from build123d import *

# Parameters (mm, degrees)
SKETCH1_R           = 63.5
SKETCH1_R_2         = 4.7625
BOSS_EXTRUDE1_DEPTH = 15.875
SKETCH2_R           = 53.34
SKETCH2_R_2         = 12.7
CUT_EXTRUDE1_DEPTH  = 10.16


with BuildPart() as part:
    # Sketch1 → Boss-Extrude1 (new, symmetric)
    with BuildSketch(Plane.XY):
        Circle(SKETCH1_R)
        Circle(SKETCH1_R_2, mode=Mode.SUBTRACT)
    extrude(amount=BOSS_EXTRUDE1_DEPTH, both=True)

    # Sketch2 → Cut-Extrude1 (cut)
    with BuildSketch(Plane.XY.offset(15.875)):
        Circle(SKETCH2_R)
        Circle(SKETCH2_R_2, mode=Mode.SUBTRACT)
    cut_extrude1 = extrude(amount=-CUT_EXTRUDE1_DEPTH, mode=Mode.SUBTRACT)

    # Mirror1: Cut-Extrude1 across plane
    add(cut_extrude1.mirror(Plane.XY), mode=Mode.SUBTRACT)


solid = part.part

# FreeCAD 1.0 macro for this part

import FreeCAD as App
import Part
import Sketcher
from FreeCAD import Vector
Q = App.Units.Quantity

doc = App.newDocument("Part")
body = doc.addObject("PartDesign::Body", "Body")

# Sketch on XY plane
sketch1 = doc.addObject("Sketcher::SketchObject", "Sketch")
body.addObject(sketch1)
sketch1.AttachmentSupport = (doc.XY_Plane, [""])
sketch1.MapMode = "FlatFace"
sketch1.addGeometry([
    Part.Circle(Vector(0, 0, 0), Vector(0, 0, 1), 63.5),
    Part.Circle(Vector(0, 0, 0), Vector(0, 0, 1), 4.7625),
], False)
sketch1.addConstraint([
    Sketcher.Constraint("Coincident", 0, 3, -1, 1),
    Sketcher.Constraint("Coincident", 1, 3, -1, 1),
    Sketcher.Constraint("Diameter", 0, Q("5 in")),
    Sketcher.Constraint("Diameter", 1, Q("0.375 in")),
])
pad1 = doc.addObject("PartDesign::Pad", "Pad")
body.addObject(pad1)
pad1.Profile = sketch1
pad1.Length = Q("1.25 in")
pad1.Midplane = True

# Sketch on XY plane
sketch2 = doc.addObject("Sketcher::SketchObject", "Sketch001")
body.addObject(sketch2)
sketch2.AttachmentSupport = (doc.XY_Plane, [""])
sketch2.MapMode = "FlatFace"
sketch2.AttachmentOffset = App.Placement(Vector(0, 0, 0.625 * 25.4), App.Rotation())
sketch2.addGeometry([
    Part.Circle(Vector(0, 0, 0), Vector(0, 0, 1), 53.34),
    Part.Circle(Vector(0, 0, 0), Vector(0, 0, 1), 12.7),
], False)
sketch2.addConstraint([
    Sketcher.Constraint("Coincident", 0, 3, -1, 1),
    Sketcher.Constraint("Coincident", 1, 3, -1, 1),
    Sketcher.Constraint("Diameter", 1, Q("1 in")),
    Sketcher.Constraint("Diameter", 0, Q("4.2 in")),
])
pocket1 = doc.addObject("PartDesign::Pocket", "Pocket")
body.addObject(pocket1)
pocket1.Profile = sketch2
pocket1.Length = Q("0.4 in")
doc.recompute()

mirrored = doc.addObject("PartDesign::Mirrored", "Mirrored")
body.addObject(mirrored)
mirrored.Originals = [pocket1]
mirrored.MirrorPlane = (doc.XY_Plane, [""])
body.Tip = mirrored

doc.recompute()
